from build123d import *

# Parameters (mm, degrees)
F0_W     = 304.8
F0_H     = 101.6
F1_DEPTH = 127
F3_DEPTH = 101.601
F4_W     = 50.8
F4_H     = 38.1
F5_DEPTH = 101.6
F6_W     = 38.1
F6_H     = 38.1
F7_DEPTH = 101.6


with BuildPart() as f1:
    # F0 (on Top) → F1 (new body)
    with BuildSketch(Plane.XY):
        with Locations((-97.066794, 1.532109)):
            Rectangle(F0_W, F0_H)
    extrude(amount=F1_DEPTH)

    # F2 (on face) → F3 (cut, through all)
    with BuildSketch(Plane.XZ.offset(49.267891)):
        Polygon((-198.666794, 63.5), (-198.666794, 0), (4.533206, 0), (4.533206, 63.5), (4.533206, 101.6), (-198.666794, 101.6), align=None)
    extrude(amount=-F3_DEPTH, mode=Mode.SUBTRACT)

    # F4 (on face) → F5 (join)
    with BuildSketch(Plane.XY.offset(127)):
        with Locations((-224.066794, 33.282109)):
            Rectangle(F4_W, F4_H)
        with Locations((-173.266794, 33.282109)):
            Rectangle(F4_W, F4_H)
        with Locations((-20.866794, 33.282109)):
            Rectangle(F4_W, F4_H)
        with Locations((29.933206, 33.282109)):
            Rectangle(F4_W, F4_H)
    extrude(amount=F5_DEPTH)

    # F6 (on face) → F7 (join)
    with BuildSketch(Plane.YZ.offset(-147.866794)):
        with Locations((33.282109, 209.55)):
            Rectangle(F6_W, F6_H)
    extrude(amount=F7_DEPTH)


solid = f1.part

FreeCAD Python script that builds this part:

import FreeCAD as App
import Part
import Sketcher
from FreeCAD import Vector
Q = App.Units.Quantity

doc = App.newDocument("Part")
body = doc.addObject("PartDesign::Body", "Body")

# Sketch on XY plane
sketch1 = body.newObject("Sketcher::SketchObject", "Sketch")
sketch1.AttachmentSupport = (doc.getObject("XY_Plane"), [""])
sketch1.MapMode = "FlatFace"
sketch1.addGeometry([
    Part.LineSegment(Vector(-249.466794, 52.332109, 0), Vector(-249.466794, -49.267891, 0)),
    Part.LineSegment(Vector(-249.466794, -49.267891, 0), Vector(55.333206, -49.267891, 0)),
    Part.LineSegment(Vector(55.333206, -49.267891, 0), Vector(55.333206, 52.332109, 0)),
    Part.LineSegment(Vector(55.333206, 52.332109, 0), Vector(-249.466794, 52.332109, 0)),
], False)
sketch1.addConstraint([
    Sketcher.Constraint("Coincident", 0, 2, 1, 1),
    Sketcher.Constraint("Coincident", 1, 2, 2, 1),
    Sketcher.Constraint("Coincident", 2, 2, 3, 1),
    Sketcher.Constraint("Coincident", 3, 2, 0, 1),
    Sketcher.Constraint("Vertical", 0),
    Sketcher.Constraint("Horizontal", 1),
    Sketcher.Constraint("Vertical", 2),
    Sketcher.Constraint("Horizontal", 3),
    Sketcher.Constraint("DistanceX", 1, 1, 1, 2, Q("12 in")),
    Sketcher.Constraint("DistanceY", 0, 2, 0, 1, Q("4 in")),
    Sketcher.Constraint("DistanceY", 0, 2, -1, 1, Q("49.267891 mm")),
    Sketcher.Constraint("DistanceX", 0, 2, -1, 1, Q("249.466794 mm")),
])
pad1 = body.newObject("PartDesign::Pad", "Pad")
pad1.Profile = sketch1
pad1.Length = Q("5 in")

# Sketch on XZ plane
sketch2 = body.newObject("Sketcher::SketchObject", "Sketch001")
sketch2.AttachmentSupport = (doc.getObject("XZ_Plane"), [""])
sketch2.MapMode = "FlatFace"
sketch2.AttachmentOffset = App.Placement(Vector(0, 0, 49.267891), App.Rotation())
sketch2.addGeometry([
    Part.LineSegment(Vector(-198.666794, 0, 0), Vector(4.533206, 0, 0)),
    Part.LineSegment(Vector(4.533206, 0, 0), Vector(4.533206, 101.6, 0)),
    Part.LineSegment(Vector(4.533206, 101.6, 0), Vector(-198.666794, 101.6, 0)),
    Part.LineSegment(Vector(-198.666794, 101.6, 0), Vector(-198.666794, 0, 0)),
], False)
sketch2.addConstraint([
    Sketcher.Constraint("Coincident", 0, 2, 1, 1),
    Sketcher.Constraint("Coincident", 1, 2, 2, 1),
    Sketcher.Constraint("Coincident", 2, 2, 3, 1),
    Sketcher.Constraint("Coincident", 3, 2, 0, 1),
    Sketcher.Constraint("Horizontal", 0),
    Sketcher.Constraint("Vertical", 1),
    Sketcher.Constraint("Horizontal", 2),
    Sketcher.Constraint("Vertical", 3),
    Sketcher.Constraint("PointOnObject", 0, 2, -1),
    Sketcher.Constraint("DistanceX", 0, 1, 0, 2, Q("8 in")),
    Sketcher.Constraint("DistanceY", 1, 1, 1, 2, Q("4 in")),
    Sketcher.Constraint("DistanceX", -1, 1, 0, 2, Q("4.533206 mm")),
])
pocket1 = body.newObject("PartDesign::Pocket", "Pocket")
pocket1.Profile = sketch2
pocket1.Type = "ThroughAll"

# Sketch on XY plane
sketch3 = body.newObject("Sketcher::SketchObject", "Sketch002")
sketch3.AttachmentSupport = (doc.getObject("XY_Plane"), [""])
sketch3.MapMode = "FlatFace"
sketch3.AttachmentOffset = App.Placement(Vector(0, 0, 5 * 25.4), App.Rotation())
sketch3.addGeometry([
    Part.LineSegment(Vector(-249.466794, 52.332109, 0), Vector(-249.466794, 14.232109, 0)),  # 0
    Part.LineSegment(Vector(-249.466794, 14.232109, 0), Vector(-147.866794, 14.232109, 0)),  # 1
    Part.LineSegment(Vector(-147.866794, 14.232109, 0), Vector(-147.866794, 52.332109, 0)),  # 2
    Part.LineSegment(Vector(-147.866794, 52.332109, 0), Vector(-249.466794, 52.332109, 0)),  # 3
    Part.LineSegment(Vector(-46.266794, 52.332109, 0), Vector(-46.266794, 14.232109, 0)),  # 4
    Part.LineSegment(Vector(-46.266794, 14.232109, 0), Vector(55.333206, 14.232109, 0)),  # 5
    Part.LineSegment(Vector(55.333206, 14.232109, 0), Vector(55.333206, 52.332109, 0)),  # 6
    Part.LineSegment(Vector(55.333206, 52.332109, 0), Vector(-46.266794, 52.332109, 0)),  # 7
], False)
sketch3.addConstraint([
    Sketcher.Constraint("Coincident", 0, 2, 1, 1),
    Sketcher.Constraint("Coincident", 1, 2, 2, 1),
    Sketcher.Constraint("Coincident", 2, 2, 3, 1),
    Sketcher.Constraint("Coincident", 3, 2, 0, 1),
    Sketcher.Constraint("Coincident", 4, 2, 5, 1),
    Sketcher.Constraint("Coincident", 5, 2, 6, 1),
    Sketcher.Constraint("Coincident", 6, 2, 7, 1),
    Sketcher.Constraint("Coincident", 7, 2, 4, 1),
    Sketcher.Constraint("Vertical", 0),
    Sketcher.Constraint("Horizontal", 1),
    Sketcher.Constraint("Vertical", 2),
    Sketcher.Constraint("Horizontal", 3),
    Sketcher.Constraint("Vertical", 4),
    Sketcher.Constraint("Horizontal", 5),
    Sketcher.Constraint("Vertical", 6),
    Sketcher.Constraint("Horizontal", 7),
    Sketcher.Constraint("Horizontal", 1, 2, 4, 2),
    Sketcher.Constraint("Horizontal", 3, 2, 6, 2),
    Sketcher.Constraint("Equal", 3, 5),
    Sketcher.Constraint("DistanceX", 1, 1, 1, 2, Q("4 in")),
    Sketcher.Constraint("DistanceY", 0, 2, 0, 1, Q("1.5 in")),
    Sketcher.Constraint("DistanceX", 1, 2, 4, 2, Q("4 in")),
    Sketcher.Constraint("DistanceY", -1, 1, 0, 2, Q("14.232109 mm")),
    Sketcher.Constraint("DistanceX", 0, 2, -1, 1, Q("249.466794 mm")),
])
pad2 = body.newObject("PartDesign::Pad", "Pad001")
pad2.Profile = sketch3
pad2.Length = Q("4 in")

# Sketch on YZ plane
sketch4 = body.newObject("Sketcher::SketchObject", "Sketch003")
sketch4.AttachmentSupport = (doc.getObject("YZ_Plane"), [""])
sketch4.MapMode = "FlatFace"
sketch4.AttachmentOffset = App.Placement(Vector(0, 0, -147.866794), App.Rotation())
sketch4.addGeometry([
    Part.LineSegment(Vector(14.232109, 228.6, 0), Vector(14.232109, 190.5, 0)),
    Part.LineSegment(Vector(14.232109, 190.5, 0), Vector(52.332109, 190.5, 0)),
    Part.LineSegment(Vector(52.332109, 190.5, 0), Vector(52.332109, 228.6, 0)),
    Part.LineSegment(Vector(52.332109, 228.6, 0), Vector(14.232109, 228.6, 0)),
], False)
sketch4.addConstraint([
    Sketcher.Constraint("Coincident", 0, 2, 1, 1),
    Sketcher.Constraint("Coincident", 1, 2, 2, 1),
    Sketcher.Constraint("Coincident", 2, 2, 3, 1),
    Sketcher.Constraint("Coincident", 3, 2, 0, 1),
    Sketcher.Constraint("Vertical", 0),
    Sketcher.Constraint("Horizontal", 1),
    Sketcher.Constraint("Vertical", 2),
    Sketcher.Constraint("Horizontal", 3),
    Sketcher.Constraint("Equal", 3, 0),
    Sketcher.Constraint("DistanceX", 1, 1, 1, 2, Q("1.5 in")),
    Sketcher.Constraint("DistanceY", -1, 1, 2, 2, Q("9 in")),
    Sketcher.Constraint("DistanceX", -1, 1, 0, 2, Q("14.232109 mm")),
])
pad3 = body.newObject("PartDesign::Pad", "Pad002")
pad3.Profile = sketch4
pad3.Length = Q("4 in")

doc.recompute()
